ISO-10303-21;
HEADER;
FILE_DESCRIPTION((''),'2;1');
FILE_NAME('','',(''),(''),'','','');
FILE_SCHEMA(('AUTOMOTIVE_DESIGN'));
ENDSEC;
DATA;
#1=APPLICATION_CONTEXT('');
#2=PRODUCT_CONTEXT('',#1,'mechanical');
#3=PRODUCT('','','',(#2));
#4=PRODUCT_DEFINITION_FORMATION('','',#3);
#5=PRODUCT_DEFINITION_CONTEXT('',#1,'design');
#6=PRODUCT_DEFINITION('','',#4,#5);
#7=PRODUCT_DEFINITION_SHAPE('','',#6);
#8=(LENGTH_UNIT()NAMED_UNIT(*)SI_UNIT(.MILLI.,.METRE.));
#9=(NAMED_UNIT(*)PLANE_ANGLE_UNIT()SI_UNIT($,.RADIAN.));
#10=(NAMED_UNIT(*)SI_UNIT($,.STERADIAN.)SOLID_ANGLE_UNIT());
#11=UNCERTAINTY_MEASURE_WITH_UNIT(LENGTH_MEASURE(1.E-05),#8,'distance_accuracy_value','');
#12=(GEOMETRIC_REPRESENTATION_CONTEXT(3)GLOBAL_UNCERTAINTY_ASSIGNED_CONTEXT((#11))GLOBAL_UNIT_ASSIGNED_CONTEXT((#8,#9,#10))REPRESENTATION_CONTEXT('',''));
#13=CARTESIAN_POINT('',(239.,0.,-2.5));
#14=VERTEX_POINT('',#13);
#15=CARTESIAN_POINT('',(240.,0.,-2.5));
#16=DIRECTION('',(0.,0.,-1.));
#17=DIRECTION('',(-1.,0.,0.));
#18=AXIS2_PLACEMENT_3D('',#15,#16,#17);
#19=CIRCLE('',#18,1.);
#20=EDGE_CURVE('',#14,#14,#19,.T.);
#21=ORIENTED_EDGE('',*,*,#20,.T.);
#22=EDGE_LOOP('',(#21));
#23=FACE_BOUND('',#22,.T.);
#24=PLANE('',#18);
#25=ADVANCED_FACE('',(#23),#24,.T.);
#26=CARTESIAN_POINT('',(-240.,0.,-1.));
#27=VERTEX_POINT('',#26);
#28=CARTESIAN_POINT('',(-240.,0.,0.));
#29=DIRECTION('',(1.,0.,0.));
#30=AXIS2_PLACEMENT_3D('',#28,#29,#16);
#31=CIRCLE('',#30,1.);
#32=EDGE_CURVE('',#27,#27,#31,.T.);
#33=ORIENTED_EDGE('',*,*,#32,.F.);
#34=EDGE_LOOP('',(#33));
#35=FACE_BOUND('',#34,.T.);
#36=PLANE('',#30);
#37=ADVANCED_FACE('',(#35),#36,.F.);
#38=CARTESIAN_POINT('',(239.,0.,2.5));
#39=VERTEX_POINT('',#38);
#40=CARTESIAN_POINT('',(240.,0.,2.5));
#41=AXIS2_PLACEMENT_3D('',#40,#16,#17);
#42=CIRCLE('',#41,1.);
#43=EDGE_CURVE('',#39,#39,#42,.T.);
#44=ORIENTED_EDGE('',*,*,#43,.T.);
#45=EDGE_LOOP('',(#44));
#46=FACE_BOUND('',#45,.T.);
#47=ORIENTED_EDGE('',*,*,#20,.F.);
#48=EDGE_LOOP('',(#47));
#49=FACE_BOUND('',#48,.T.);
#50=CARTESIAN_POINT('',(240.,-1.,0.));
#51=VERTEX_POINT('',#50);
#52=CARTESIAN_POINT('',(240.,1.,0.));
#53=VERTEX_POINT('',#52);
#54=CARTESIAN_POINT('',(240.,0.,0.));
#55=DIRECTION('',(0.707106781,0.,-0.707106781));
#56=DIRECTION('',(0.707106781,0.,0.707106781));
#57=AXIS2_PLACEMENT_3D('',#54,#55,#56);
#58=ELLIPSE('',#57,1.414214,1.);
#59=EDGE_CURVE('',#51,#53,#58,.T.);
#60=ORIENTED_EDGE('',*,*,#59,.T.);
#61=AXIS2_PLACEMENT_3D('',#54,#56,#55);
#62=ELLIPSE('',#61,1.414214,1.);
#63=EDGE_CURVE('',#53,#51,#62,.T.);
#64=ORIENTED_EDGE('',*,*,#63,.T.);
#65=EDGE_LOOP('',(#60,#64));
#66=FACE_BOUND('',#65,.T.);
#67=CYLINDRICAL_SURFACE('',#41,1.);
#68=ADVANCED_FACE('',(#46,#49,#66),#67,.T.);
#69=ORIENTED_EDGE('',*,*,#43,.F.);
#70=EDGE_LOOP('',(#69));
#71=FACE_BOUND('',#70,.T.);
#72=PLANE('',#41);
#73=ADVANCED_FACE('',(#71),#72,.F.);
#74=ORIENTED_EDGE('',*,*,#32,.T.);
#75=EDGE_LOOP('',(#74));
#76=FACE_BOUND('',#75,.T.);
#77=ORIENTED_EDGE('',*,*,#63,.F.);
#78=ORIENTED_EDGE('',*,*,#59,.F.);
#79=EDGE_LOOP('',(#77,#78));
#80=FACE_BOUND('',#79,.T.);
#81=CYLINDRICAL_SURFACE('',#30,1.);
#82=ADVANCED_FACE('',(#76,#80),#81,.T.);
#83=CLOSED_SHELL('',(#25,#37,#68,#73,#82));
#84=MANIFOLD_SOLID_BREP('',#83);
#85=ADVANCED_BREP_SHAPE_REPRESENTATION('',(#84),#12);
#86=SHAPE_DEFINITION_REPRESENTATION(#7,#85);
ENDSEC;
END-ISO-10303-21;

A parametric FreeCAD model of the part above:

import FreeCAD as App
import Part
import Sketcher
from FreeCAD import Vector

doc = App.newDocument("Part")
body = doc.addObject("PartDesign::Body", "Body")

# Sketch on YZ plane
sketch1 = body.newObject("Sketcher::SketchObject", "Sketch")
sketch1.AttachmentSupport = (doc.getObject("YZ_Plane"), [""])
sketch1.MapMode = "FlatFace"
sketch1.AttachmentOffset = App.Placement(Vector(0, 0, -240), App.Rotation())
sketch1.addGeometry(Part.Circle(Vector(0, 0, 0), Vector(0, 0, 1), 1), False)
sketch1.addConstraint(Sketcher.Constraint("Coincident", 0, 3, -1, 1))
sketch1.addConstraint(Sketcher.Constraint("Diameter", 0, 2.0))

# Sketch on XY plane
sketch2 = body.newObject("Sketcher::SketchObject", "Sketch001")
sketch2.AttachmentSupport = (doc.getObject("XY_Plane"), [""])
sketch2.MapMode = "FlatFace"
sketch2.addGeometry(Part.LineSegment(Vector(-240, 0, 0), Vector(240, 0, 0)), False)
sketch2.addConstraint(Sketcher.Constraint("Horizontal", 0))
sketch2.addConstraint(Sketcher.Constraint("Symmetric", 0, 1, 0, 2, -1, 1))
sketch2.addConstraint(Sketcher.Constraint("DistanceX", 0, 1, 0, 2, 480.0))
doc.recompute()

additivepipe = body.newObject("PartDesign::AdditivePipe", "AdditivePipe")
additivepipe.Profile = sketch1
additivepipe.Spine = (sketch2, ["Edge1"])

# Sketch on XY plane
sketch3 = body.newObject("Sketcher::SketchObject", "Sketch002")
sketch3.AttachmentSupport = (doc.getObject("XY_Plane"), [""])
sketch3.MapMode = "FlatFace"
sketch3.AttachmentOffset = App.Placement(Vector(0, 0, 2.5), App.Rotation())
sketch3.addGeometry(Part.Circle(Vector(240, 0, 0), Vector(0, 0, 1), 1), False)
sketch3.addConstraint(Sketcher.Constraint("PointOnObject", 0, 3, -1))
sketch3.addConstraint(Sketcher.Constraint("Diameter", 0, 2.0))
sketch3.addConstraint(Sketcher.Constraint("DistanceX", -1, 1, 0, 3, 240.0))

# Sketch on XZ plane
sketch4 = body.newObject("Sketcher::SketchObject", "Sketch003")
sketch4.AttachmentSupport = (doc.getObject("XZ_Plane"), [""])
sketch4.MapMode = "FlatFace"
sketch4.addGeometry(Part.LineSegment(Vector(240, 2, 0), Vector(240, -2, 0)), False)
sketch4.addConstraint(Sketcher.Constraint("Vertical", 0))
sketch4.addConstraint(Sketcher.Constraint("DistanceY", 0, 2, 0, 1, 5.0))
sketch4.addConstraint(Sketcher.Constraint("DistanceX", -1, 1, 0, 1, 240.0))
sketch4.addConstraint(Sketcher.Constraint("DistanceY", -1, 1, 0, 1, 2.5))
doc.recompute()

additivepipe2 = body.newObject("PartDesign::AdditivePipe", "AdditivePipe001")
additivepipe2.Profile = sketch3
additivepipe2.Spine = (sketch4, ["Edge1"])

doc.recompute()
